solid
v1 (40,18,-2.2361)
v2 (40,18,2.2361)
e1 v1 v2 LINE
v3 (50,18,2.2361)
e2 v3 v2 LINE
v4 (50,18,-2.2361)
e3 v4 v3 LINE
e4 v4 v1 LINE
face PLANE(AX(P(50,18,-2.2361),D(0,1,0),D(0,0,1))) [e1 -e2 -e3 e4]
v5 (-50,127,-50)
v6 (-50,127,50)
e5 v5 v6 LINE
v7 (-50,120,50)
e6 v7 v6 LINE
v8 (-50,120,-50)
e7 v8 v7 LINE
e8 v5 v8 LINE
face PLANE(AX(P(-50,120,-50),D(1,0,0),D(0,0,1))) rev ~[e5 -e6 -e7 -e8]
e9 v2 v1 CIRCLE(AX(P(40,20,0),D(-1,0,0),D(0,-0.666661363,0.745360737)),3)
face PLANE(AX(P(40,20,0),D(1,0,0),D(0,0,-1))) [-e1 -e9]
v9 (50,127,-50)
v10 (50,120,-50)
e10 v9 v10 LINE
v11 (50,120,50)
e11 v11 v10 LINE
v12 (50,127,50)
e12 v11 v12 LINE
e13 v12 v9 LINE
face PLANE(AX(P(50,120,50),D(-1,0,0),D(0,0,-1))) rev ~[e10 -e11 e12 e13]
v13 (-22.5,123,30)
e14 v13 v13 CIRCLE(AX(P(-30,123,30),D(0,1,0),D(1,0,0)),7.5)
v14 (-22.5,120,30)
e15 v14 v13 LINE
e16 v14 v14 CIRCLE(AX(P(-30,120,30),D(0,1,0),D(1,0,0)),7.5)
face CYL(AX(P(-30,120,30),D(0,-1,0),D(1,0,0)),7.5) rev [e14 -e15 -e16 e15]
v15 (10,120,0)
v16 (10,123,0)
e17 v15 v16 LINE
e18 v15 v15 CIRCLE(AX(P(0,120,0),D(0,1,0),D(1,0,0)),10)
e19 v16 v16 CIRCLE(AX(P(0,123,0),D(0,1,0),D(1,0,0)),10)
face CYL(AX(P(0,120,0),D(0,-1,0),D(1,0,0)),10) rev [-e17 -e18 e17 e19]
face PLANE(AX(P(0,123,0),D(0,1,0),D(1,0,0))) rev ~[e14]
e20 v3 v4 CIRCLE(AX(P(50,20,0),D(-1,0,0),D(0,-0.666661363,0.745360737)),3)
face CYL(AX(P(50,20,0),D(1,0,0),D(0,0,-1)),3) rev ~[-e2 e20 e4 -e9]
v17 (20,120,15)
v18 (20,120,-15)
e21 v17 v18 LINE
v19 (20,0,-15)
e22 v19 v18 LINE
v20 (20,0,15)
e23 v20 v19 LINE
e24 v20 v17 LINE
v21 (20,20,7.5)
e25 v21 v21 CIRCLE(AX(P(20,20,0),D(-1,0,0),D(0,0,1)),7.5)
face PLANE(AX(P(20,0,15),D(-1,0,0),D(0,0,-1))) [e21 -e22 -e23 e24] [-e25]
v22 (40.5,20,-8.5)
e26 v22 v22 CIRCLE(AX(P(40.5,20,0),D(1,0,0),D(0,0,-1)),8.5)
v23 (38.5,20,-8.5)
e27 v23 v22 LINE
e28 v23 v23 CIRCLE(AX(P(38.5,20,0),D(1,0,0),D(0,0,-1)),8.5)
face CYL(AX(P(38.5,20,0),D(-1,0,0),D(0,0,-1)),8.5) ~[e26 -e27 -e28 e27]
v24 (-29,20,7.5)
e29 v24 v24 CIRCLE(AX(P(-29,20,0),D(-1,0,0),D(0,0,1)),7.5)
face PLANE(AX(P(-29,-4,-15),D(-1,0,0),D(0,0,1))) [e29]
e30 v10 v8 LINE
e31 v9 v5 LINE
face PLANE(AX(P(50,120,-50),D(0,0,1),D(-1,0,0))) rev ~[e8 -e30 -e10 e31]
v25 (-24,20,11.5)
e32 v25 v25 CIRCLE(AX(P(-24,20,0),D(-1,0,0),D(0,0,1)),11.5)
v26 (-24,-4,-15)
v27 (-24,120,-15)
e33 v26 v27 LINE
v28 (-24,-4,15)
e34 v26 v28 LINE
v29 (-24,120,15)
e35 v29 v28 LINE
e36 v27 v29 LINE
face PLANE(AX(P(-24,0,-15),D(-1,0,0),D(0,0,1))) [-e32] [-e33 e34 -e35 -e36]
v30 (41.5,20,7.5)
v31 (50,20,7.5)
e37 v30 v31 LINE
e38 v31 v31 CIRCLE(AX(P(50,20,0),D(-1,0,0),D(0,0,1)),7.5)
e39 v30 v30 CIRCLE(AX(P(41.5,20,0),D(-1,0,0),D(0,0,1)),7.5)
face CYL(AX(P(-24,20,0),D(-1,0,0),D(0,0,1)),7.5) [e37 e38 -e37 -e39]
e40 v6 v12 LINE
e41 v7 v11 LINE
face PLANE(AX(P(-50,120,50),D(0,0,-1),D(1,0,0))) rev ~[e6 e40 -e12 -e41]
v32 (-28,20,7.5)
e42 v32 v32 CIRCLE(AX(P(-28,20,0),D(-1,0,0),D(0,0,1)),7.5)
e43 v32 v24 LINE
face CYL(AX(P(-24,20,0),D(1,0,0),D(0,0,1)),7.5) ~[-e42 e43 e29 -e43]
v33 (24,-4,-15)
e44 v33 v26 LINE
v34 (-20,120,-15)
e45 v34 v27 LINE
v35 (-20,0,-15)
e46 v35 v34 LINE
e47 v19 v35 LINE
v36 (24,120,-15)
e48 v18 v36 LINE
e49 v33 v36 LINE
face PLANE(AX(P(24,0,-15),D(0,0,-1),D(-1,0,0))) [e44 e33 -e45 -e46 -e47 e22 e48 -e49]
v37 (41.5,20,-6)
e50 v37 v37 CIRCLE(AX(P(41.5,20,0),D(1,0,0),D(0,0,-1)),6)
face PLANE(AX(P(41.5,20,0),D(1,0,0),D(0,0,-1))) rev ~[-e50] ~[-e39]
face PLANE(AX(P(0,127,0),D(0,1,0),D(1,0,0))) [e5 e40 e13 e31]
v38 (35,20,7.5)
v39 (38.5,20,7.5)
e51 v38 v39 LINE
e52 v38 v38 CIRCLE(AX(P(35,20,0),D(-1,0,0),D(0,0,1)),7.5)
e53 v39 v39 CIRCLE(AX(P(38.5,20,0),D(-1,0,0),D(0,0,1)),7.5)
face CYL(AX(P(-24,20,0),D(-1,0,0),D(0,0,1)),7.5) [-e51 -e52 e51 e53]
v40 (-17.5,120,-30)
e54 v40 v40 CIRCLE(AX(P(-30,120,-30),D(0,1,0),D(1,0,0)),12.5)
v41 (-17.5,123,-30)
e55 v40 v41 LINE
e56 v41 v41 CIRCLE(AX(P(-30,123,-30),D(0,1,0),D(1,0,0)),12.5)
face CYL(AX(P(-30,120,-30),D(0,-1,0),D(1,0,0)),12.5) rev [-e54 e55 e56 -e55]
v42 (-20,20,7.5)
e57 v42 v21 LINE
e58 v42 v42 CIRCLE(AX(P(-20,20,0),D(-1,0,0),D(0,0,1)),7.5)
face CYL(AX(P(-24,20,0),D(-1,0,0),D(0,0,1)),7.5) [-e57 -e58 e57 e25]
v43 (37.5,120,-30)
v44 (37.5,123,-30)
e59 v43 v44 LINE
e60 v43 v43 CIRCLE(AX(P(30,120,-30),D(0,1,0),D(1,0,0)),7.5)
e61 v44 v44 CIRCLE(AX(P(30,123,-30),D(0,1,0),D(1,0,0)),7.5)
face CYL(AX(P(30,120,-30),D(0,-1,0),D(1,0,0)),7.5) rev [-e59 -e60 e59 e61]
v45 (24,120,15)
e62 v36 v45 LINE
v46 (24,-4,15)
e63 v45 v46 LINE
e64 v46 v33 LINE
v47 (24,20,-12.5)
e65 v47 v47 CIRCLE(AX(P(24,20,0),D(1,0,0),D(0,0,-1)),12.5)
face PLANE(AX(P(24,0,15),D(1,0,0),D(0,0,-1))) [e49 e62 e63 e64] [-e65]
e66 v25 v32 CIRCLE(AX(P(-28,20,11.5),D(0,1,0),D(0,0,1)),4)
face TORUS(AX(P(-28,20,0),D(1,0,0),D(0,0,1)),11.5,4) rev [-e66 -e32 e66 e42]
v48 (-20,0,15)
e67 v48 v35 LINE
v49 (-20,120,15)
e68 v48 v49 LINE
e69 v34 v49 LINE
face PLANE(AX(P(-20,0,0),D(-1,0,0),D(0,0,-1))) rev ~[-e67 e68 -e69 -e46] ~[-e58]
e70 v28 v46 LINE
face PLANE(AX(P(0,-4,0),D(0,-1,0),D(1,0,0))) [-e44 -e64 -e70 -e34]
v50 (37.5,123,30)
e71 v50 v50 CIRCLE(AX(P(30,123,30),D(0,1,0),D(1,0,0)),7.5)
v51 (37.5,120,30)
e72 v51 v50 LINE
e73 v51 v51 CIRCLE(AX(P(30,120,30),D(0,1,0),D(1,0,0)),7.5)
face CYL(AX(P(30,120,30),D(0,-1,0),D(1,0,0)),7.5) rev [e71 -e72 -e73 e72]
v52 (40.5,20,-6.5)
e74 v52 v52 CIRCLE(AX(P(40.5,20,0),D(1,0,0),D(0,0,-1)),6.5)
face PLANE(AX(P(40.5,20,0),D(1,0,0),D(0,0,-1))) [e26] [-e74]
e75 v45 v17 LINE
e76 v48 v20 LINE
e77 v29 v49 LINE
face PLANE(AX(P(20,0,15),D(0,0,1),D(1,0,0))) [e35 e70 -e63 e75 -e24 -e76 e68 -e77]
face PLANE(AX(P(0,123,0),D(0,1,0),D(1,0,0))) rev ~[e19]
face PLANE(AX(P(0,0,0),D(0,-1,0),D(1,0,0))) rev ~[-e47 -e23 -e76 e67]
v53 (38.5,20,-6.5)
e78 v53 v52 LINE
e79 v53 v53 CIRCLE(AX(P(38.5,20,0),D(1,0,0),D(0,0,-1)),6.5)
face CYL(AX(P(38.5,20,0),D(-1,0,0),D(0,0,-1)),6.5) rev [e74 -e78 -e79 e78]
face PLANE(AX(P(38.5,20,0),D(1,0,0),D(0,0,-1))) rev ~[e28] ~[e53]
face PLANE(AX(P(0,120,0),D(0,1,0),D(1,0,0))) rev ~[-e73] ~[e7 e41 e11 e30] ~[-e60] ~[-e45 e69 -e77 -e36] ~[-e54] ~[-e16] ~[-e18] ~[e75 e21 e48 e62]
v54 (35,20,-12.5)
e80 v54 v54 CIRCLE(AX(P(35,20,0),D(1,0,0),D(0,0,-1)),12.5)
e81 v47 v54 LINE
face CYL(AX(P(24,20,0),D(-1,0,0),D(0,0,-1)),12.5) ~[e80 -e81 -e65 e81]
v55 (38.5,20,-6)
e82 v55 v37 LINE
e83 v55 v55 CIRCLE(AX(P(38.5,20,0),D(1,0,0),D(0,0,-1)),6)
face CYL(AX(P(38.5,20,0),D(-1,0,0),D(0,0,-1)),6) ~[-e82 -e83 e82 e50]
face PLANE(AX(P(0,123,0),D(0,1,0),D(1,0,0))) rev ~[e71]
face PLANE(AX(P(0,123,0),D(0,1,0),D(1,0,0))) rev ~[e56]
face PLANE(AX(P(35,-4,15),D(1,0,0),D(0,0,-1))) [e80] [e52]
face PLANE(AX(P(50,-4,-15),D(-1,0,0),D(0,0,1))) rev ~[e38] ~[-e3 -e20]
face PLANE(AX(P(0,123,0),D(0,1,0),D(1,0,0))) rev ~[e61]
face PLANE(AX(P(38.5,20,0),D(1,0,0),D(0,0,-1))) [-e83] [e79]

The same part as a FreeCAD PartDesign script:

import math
import FreeCAD as App
import Part
import Sketcher


def edges_at(feature, points):
    """Names of the edges that pass closest to the given points."""
    edges = feature.Shape.Edges
    near = lambda p: min(range(len(edges)), key=lambda i: edges[i].distToShape(Part.Vertex(*p))[0])
    return sorted({f"Edge{near(p) + 1}" for p in points})

doc = App.newDocument("Part")
body = doc.addObject("PartDesign::Body", "Body")
body.AllowCompound = True

# Sketch on XZ plane
sketch1 = body.newObject("Sketcher::SketchObject", "Sketch")
sketch1.AttachmentSupport = (doc.getObject("XZ_Plane"), [""])
sketch1.MapMode = "FlatFace"
sketch1.addGeometry([
    Part.LineSegment(App.Vector(-24, -15, 0), App.Vector(-24, 15, 0)),  # 0
    Part.LineSegment(App.Vector(-24, 15, 0), App.Vector(-20, 15, 0)),  # 1
    Part.LineSegment(App.Vector(-20, 15, 0), App.Vector(-20, -15, 0)),  # 2
    Part.LineSegment(App.Vector(-20, -15, 0), App.Vector(-24, -15, 0)),  # 3
    Part.LineSegment(App.Vector(20, 15, 0), App.Vector(24, 15, 0)),  # 4
    Part.LineSegment(App.Vector(24, 15, 0), App.Vector(24, -15, 0)),  # 5
    Part.LineSegment(App.Vector(24, -15, 0), App.Vector(20, -15, 0)),  # 6
    Part.LineSegment(App.Vector(20, -15, 0), App.Vector(20, 15, 0)),  # 7
], False)
sketch1.addConstraint([
    Sketcher.Constraint("Coincident", 0, 2, 1, 1),
    Sketcher.Constraint("Coincident", 1, 2, 2, 1),
    Sketcher.Constraint("Coincident", 2, 2, 3, 1),
    Sketcher.Constraint("Coincident", 3, 2, 0, 1),
    Sketcher.Constraint("Coincident", 4, 2, 5, 1),
    Sketcher.Constraint("Coincident", 5, 2, 6, 1),
    Sketcher.Constraint("Coincident", 6, 2, 7, 1),
    Sketcher.Constraint("Coincident", 7, 2, 4, 1),
    Sketcher.Constraint("Vertical", 0),
    Sketcher.Constraint("Horizontal", 1),
    Sketcher.Constraint("Vertical", 2),
    Sketcher.Constraint("Horizontal", 3),
    Sketcher.Constraint("Horizontal", 4),
    Sketcher.Constraint("Vertical", 5),
    Sketcher.Constraint("Horizontal", 6),
    Sketcher.Constraint("Vertical", 7),
    Sketcher.Constraint("Symmetric", 3, 2, 4, 2, -1, 1),
    Sketcher.Constraint("Symmetric", 1, 2, 6, 2, -1, 1),
    Sketcher.Constraint("Horizontal", 1, 2, 4, 2),
    Sketcher.Constraint("DistanceX", 1, 1, 1, 2, 4.0),
    Sketcher.Constraint("DistanceY", 0, 1, 0, 2, 30.0),
    Sketcher.Constraint("DistanceX", 1, 2, -1, 1, 20.0),
])
pad1 = body.newObject("PartDesign::Pad", "Pad")
pad1.Profile = sketch1
pad1.Length = 120
pad1.Reversed = True

# Sketch on YZ plane
sketch2 = body.newObject("Sketcher::SketchObject", "Sketch001")
sketch2.AttachmentSupport = (doc.getObject("YZ_Plane"), [""])
sketch2.MapMode = "FlatFace"
sketch2.AttachmentOffset = App.Placement(App.Vector(0, 0, -24), App.Rotation())
sketch2.addGeometry(Part.Circle(App.Vector(20, 0, 0), App.Vector(0, 0, 1), 7.5), False)
sketch2.addConstraint([
    Sketcher.Constraint("PointOnObject", 0, 3, -1),
    Sketcher.Constraint("Diameter", 0, 15.0),
    Sketcher.Constraint("DistanceX", -1, 1, 0, 3, 20.0),
])
pocket1 = body.newObject("PartDesign::Pocket", "Pocket")
pocket1.Profile = sketch2
pocket1.Length = 48
pocket1.Reversed = True

# Sketch on XZ plane
sketch3 = body.newObject("Sketcher::SketchObject", "Sketch002")
sketch3.AttachmentSupport = (doc.getObject("XZ_Plane"), [""])
sketch3.MapMode = "FlatFace"
sketch3.addGeometry([
    Part.LineSegment(App.Vector(24, -15, 0), App.Vector(24, 15, 0)),
    Part.LineSegment(App.Vector(24, 15, 0), App.Vector(-24, 15, 0)),
    Part.LineSegment(App.Vector(-24, 15, 0), App.Vector(-24, -15, 0)),
    Part.LineSegment(App.Vector(-24, -15, 0), App.Vector(24, -15, 0)),
], False)
sketch3.addConstraint([
    Sketcher.Constraint("Coincident", 0, 2, 1, 1),
    Sketcher.Constraint("Coincident", 1, 2, 2, 1),
    Sketcher.Constraint("Coincident", 2, 2, 3, 1),
    Sketcher.Constraint("Coincident", 3, 2, 0, 1),
    Sketcher.Constraint("Vertical", 0),
    Sketcher.Constraint("Horizontal", 1),
    Sketcher.Constraint("Vertical", 2),
    Sketcher.Constraint("Horizontal", 3),
    Sketcher.Constraint("Symmetric", 0, 2, 2, 2, -1, 1),
    Sketcher.Constraint("DistanceX", 1, 2, 1, 1, 48.0),
    Sketcher.Constraint("DistanceY", 0, 1, 0, 2, 30.0),
])
pad2 = body.newObject("PartDesign::Pad", "Pad001")
pad2.Profile = sketch3
pad2.Length = 4

# Sketch on YZ plane
sketch4 = body.newObject("Sketcher::SketchObject", "Sketch003")
sketch4.AttachmentSupport = (doc.getObject("YZ_Plane"), [""])
sketch4.MapMode = "FlatFace"
sketch4.AttachmentOffset = App.Placement(App.Vector(0, 0, 24), App.Rotation())
sketch4.addGeometry([
    Part.Circle(App.Vector(20, 0, 0), App.Vector(0, 0, 1), 12.5),
    Part.Circle(App.Vector(20, 0, 0), App.Vector(0, 0, 1), 7.5),
], False)
sketch4.addConstraint([
    Sketcher.Constraint("Coincident", 1, 3, 0, 3),
    Sketcher.Constraint("PointOnObject", 0, 3, -1),
    Sketcher.Constraint("Diameter", 0, 25.0),
    Sketcher.Constraint("Diameter", 1, 15.0),
    Sketcher.Constraint("DistanceX", -1, 1, 0, 3, 20.0),
])
pocket2 = body.newObject("PartDesign::Pocket", "Pocket001")
pocket2.Profile = sketch4
pocket2.Length = 1

# Sketch on XZ plane
sketch5 = body.newObject("Sketcher::SketchObject", "Sketch004")
sketch5.AttachmentSupport = (doc.getObject("XZ_Plane"), [""])
sketch5.MapMode = "FlatFace"
sketch5.AttachmentOffset = App.Placement(App.Vector(0, 0, -120), App.Rotation())
sketch5.addGeometry([
    Part.LineSegment(App.Vector(-50, -50, 0), App.Vector(-50, 50, 0)),  # 0
    Part.LineSegment(App.Vector(-50, 50, 0), App.Vector(50, 50, 0)),  # 1
    Part.LineSegment(App.Vector(50, 50, 0), App.Vector(50, -50, 0)),  # 2
    Part.LineSegment(App.Vector(50, -50, 0), App.Vector(-50, -50, 0)),  # 3
    Part.Circle(App.Vector(-30, 30, 0), App.Vector(0, 0, 1), 7.5),  # 4
    Part.Circle(App.Vector(30, 30, 0), App.Vector(0, 0, 1), 7.5),  # 5
    Part.Circle(App.Vector(-30, -30, 0), App.Vector(0, 0, 1), 12.5),  # 6
    Part.Circle(App.Vector(0, 0, 0), App.Vector(0, 0, 1), 10),  # 7
    Part.Circle(App.Vector(30, -30, 0), App.Vector(0, 0, 1), 7.5),  # 8
], False)
sketch5.addConstraint([
    Sketcher.Constraint("Coincident", 0, 2, 1, 1),
    Sketcher.Constraint("Coincident", 1, 2, 2, 1),
    Sketcher.Constraint("Coincident", 2, 2, 3, 1),
    Sketcher.Constraint("Coincident", 3, 2, 0, 1),
    Sketcher.Constraint("Vertical", 0),
    Sketcher.Constraint("Horizontal", 1),
    Sketcher.Constraint("Vertical", 2),
    Sketcher.Constraint("Horizontal", 3),
    Sketcher.Constraint("Coincident", 7, 3, -1, 1),
    Sketcher.Constraint("Equal", 4, 5),
    Sketcher.Constraint("Equal", 5, 8),
    Sketcher.Constraint("Symmetric", 5, 3, 6, 3, -1, 1),
    Sketcher.Constraint("Symmetric", 4, 3, 8, 3, -1, 1),
    Sketcher.Constraint("Symmetric", 0, 2, 2, 2, -1, 1),
    Sketcher.Constraint("Symmetric", 4, 3, 5, 3, -2),
    Sketcher.Constraint("Equal", 3, 0),
    Sketcher.Constraint("Diameter", 4, 15.0),
    Sketcher.Constraint("Diameter", 6, 25.0),
    Sketcher.Constraint("Diameter", 7, 20.0),
    Sketcher.Constraint("DistanceX", 1, 1, 1, 2, 100.0),
    Sketcher.Constraint("DistanceX", 4, 3, -1, 1, 30.0),
    Sketcher.Constraint("DistanceY", -1, 1, 4, 3, 30.0),
])
pad3 = body.newObject("PartDesign::Pad", "Pad002")
pad3.Profile = sketch5
pad3.Length = 3
pad3.Reversed = True

# Sketch on XZ plane
sketch6 = body.newObject("Sketcher::SketchObject", "Sketch005")
sketch6.AttachmentSupport = (doc.getObject("XZ_Plane"), [""])
sketch6.MapMode = "FlatFace"
sketch6.AttachmentOffset = App.Placement(App.Vector(0, 0, -123), App.Rotation())
sketch6.addGeometry([
    Part.LineSegment(App.Vector(50, 50, 0), App.Vector(50, -50, 0)),
    Part.LineSegment(App.Vector(50, -50, 0), App.Vector(-50, -50, 0)),
    Part.LineSegment(App.Vector(-50, -50, 0), App.Vector(-50, 50, 0)),
    Part.LineSegment(App.Vector(-50, 50, 0), App.Vector(50, 50, 0)),
], False)
sketch6.addConstraint([
    Sketcher.Constraint("Coincident", 0, 2, 1, 1),
    Sketcher.Constraint("Coincident", 1, 2, 2, 1),
    Sketcher.Constraint("Coincident", 2, 2, 3, 1),
    Sketcher.Constraint("Coincident", 3, 2, 0, 1),
    Sketcher.Constraint("Vertical", 0),
    Sketcher.Constraint("Horizontal", 1),
    Sketcher.Constraint("Vertical", 2),
    Sketcher.Constraint("Horizontal", 3),
    Sketcher.Constraint("Symmetric", 0, 2, 2, 2, -1, 1),
    Sketcher.Constraint("Equal", 3, 0),
    Sketcher.Constraint("DistanceX", 1, 2, 1, 1, 100.0),
])
pad4 = body.newObject("PartDesign::Pad", "Pad003")
pad4.Profile = sketch6
pad4.Length = 4
pad4.Reversed = True

# Sketch on YZ plane
sketch7 = body.newObject("Sketcher::SketchObject", "Sketch006")
sketch7.AttachmentSupport = (doc.getObject("YZ_Plane"), [""])
sketch7.MapMode = "FlatFace"
sketch7.AttachmentOffset = App.Placement(App.Vector(0, 0, 24), App.Rotation())
sketch7.addGeometry([
    Part.Circle(App.Vector(20, 0, 0), App.Vector(0, 0, 1), 12.5),
    Part.Circle(App.Vector(20, 0, 0), App.Vector(0, 0, 1), 7.5),
], False)
sketch7.addConstraint([
    Sketcher.Constraint("Coincident", 1, 3, 0, 3),
    Sketcher.Constraint("PointOnObject", 0, 3, -1),
    Sketcher.Constraint("Diameter", 0, 25.0),
    Sketcher.Constraint("Diameter", 1, 15.0),
    Sketcher.Constraint("DistanceX", -1, 1, 0, 3, 20.0),
])
pad5 = body.newObject("PartDesign::Pad", "Pad004")
pad5.Profile = sketch7
pad5.Type = "TwoLengths"
pad5.Length = 11
pad5.Length2 = 1

# Sketch on YZ plane
sketch8 = body.newObject("Sketcher::SketchObject", "Sketch007")
sketch8.AttachmentSupport = (doc.getObject("YZ_Plane"), [""])
sketch8.MapMode = "FlatFace"
sketch8.AttachmentOffset = App.Placement(App.Vector(0, 0, -24), App.Rotation())
sketch8.addGeometry(Part.Circle(App.Vector(20, 0, 0), App.Vector(0, 0, 1), 7.5), False)
sketch8.addConstraint([
    Sketcher.Constraint("PointOnObject", 0, 3, -1),
    Sketcher.Constraint("Diameter", 0, 15.0),
    Sketcher.Constraint("DistanceX", -1, 1, 0, 3, 20.0),
])
pad6 = body.newObject("PartDesign::Pad", "Pad005")
pad6.Profile = sketch8
pad6.Type = "TwoLengths"
pad6.Length = 5
pad6.Length2 = 74
pad6.Reversed = True

# Sketch on YZ plane
sketch9 = body.newObject("Sketcher::SketchObject", "Sketch008")
sketch9.AttachmentSupport = (doc.getObject("YZ_Plane"), [""])
sketch9.MapMode = "FlatFace"
sketch9.AttachmentOffset = App.Placement(App.Vector(0, 0, 50), App.Rotation())
sketch9.addGeometry([
    Part.ArcOfCircle(Part.Circle(App.Vector(20, 0, 0), App.Vector(0, 0, 1), 3), math.radians(-131.809907), math.radians(131.809907)),
    Part.LineSegment(App.Vector(18, -2.2361, 0), App.Vector(18, 2.2361, 0)),
], False)
sketch9.addConstraint([
    Sketcher.Constraint("Coincident", 0, 1, 1, 1),
    Sketcher.Constraint("Coincident", 1, 2, 0, 2),
    Sketcher.Constraint("Vertical", 1),
    Sketcher.Constraint("PointOnObject", 0, 3, -1),
    Sketcher.Constraint("Radius", 0, 3.0),
    Sketcher.Constraint("DistanceX", 0, 1, 0, 3, 2.0),
    Sketcher.Constraint("DistanceX", -1, 1, 0, 3, 20.0),
])
pocket3 = body.newObject("PartDesign::Pocket", "Pocket002")
pocket3.Profile = sketch9
pocket3.Length = 10

# Sketch on YZ plane
sketch10 = body.newObject("Sketcher::SketchObject", "Sketch009")
sketch10.AttachmentSupport = (doc.getObject("YZ_Plane"), [""])
sketch10.MapMode = "FlatFace"
sketch10.AttachmentOffset = App.Placement(App.Vector(0, 0, 38.5), App.Rotation())
sketch10.addGeometry([
    Part.Circle(App.Vector(20, 0, 0), App.Vector(0, 0, 1), 7.5),
    Part.Circle(App.Vector(20, 0, 0), App.Vector(0, 0, 1), 6),
], False)
sketch10.addConstraint([
    Sketcher.Constraint("Coincident", 1, 3, 0, 3),
    Sketcher.Constraint("PointOnObject", 0, 3, -1),
    Sketcher.Constraint("Diameter", 1, 12.0),
    Sketcher.Constraint("Diameter", 0, 15.0),
    Sketcher.Constraint("DistanceX", -1, 1, 0, 3, 20.0),
])
pocket4 = body.newObject("PartDesign::Pocket", "Pocket003")
pocket4.Profile = sketch10
pocket4.Length = 3
pocket4.Reversed = True

# Sketch on YZ plane
sketch11 = body.newObject("Sketcher::SketchObject", "Sketch010")
sketch11.AttachmentSupport = (doc.getObject("YZ_Plane"), [""])
sketch11.MapMode = "FlatFace"
sketch11.AttachmentOffset = App.Placement(App.Vector(0, 0, 38.5), App.Rotation())
sketch11.addGeometry([
    Part.Circle(App.Vector(20, 0, 0), App.Vector(0, 0, 1), 8.5),
    Part.Circle(App.Vector(20, 0, 0), App.Vector(0, 0, 1), 6.5),
], False)
sketch11.addConstraint([
    Sketcher.Constraint("Coincident", 1, 3, 0, 3),
    Sketcher.Constraint("PointOnObject", 0, 3, -1),
    Sketcher.Constraint("Diameter", 0, 17.0),
    Sketcher.Constraint("Diameter", 1, 13.0),
    Sketcher.Constraint("DistanceX", -1, 1, 0, 3, 20.0),
])
pad7 = body.newObject("PartDesign::Pad", "Pad006")
pad7.Profile = sketch11
pad7.Length = 2
doc.recompute()

fillet = body.newObject("PartDesign::Fillet", "Fillet")
fillet.Base = (pad7, edges_at(pad7, [(-24, 20, -7.5)]))
fillet.Radius = 4

doc.recompute()
